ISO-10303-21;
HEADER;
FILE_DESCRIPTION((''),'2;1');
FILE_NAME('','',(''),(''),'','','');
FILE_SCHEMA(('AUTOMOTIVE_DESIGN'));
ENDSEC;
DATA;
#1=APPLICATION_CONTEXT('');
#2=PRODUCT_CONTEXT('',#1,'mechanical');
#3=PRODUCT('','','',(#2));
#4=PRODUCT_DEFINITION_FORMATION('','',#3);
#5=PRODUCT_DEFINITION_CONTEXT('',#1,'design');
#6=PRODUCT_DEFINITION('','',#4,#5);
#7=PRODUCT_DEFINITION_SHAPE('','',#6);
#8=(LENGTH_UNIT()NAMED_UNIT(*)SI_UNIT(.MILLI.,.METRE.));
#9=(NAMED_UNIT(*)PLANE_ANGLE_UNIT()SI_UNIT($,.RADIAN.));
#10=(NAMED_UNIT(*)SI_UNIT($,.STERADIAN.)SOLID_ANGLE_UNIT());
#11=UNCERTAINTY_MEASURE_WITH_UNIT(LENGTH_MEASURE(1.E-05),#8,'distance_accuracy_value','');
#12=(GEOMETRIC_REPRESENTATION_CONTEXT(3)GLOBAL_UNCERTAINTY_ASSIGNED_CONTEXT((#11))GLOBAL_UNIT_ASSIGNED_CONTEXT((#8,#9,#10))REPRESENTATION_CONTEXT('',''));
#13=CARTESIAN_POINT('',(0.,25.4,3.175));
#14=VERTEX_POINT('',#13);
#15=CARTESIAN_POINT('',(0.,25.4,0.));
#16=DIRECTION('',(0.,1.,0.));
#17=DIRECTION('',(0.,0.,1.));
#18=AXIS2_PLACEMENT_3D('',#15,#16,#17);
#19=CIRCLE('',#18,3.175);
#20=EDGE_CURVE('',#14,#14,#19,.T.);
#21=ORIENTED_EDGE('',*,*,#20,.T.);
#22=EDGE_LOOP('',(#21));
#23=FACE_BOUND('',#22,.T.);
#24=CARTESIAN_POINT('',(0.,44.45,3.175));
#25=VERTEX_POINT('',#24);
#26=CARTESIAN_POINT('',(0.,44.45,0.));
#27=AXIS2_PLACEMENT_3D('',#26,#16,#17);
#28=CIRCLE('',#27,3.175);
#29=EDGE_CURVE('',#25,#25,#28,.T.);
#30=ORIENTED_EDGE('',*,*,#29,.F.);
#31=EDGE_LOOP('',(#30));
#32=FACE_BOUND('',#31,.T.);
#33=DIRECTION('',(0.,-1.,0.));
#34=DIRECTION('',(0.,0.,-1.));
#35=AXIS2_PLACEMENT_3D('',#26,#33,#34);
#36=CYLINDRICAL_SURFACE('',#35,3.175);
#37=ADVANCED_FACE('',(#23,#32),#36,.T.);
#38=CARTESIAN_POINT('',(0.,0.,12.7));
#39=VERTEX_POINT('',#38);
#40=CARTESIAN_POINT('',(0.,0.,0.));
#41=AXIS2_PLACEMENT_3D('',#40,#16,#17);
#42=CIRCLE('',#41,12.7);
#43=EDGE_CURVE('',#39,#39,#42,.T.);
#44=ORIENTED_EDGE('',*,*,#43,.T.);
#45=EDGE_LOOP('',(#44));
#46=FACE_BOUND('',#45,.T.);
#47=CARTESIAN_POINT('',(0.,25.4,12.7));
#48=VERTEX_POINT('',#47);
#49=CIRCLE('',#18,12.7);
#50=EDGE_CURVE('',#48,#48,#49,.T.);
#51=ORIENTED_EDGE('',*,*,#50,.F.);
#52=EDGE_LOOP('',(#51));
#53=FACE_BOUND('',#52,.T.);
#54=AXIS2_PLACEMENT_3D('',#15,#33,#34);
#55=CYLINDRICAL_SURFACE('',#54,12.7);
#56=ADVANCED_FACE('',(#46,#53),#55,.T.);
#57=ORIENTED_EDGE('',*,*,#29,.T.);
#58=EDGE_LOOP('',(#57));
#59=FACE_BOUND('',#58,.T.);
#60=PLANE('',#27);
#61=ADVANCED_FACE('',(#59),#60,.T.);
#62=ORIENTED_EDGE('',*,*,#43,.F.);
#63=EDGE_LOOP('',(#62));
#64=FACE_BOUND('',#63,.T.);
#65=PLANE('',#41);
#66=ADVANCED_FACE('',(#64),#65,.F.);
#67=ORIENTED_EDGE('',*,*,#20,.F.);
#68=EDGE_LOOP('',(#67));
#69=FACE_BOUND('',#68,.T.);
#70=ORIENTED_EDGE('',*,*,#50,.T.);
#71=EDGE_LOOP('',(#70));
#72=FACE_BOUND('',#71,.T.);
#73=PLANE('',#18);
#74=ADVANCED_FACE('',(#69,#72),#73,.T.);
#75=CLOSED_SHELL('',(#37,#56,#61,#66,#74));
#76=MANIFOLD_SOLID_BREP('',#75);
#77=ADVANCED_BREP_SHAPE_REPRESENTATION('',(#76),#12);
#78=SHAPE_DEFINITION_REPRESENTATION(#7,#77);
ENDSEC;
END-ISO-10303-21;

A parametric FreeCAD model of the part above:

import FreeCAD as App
import Part
import Sketcher

V = App.Vector
Q = App.Units.Quantity

doc = App.newDocument("Part")
body = doc.addObject("PartDesign::Body", "Body")

sketch1 = body.newObject("Sketcher::SketchObject", "Sketch")
sketch1.AttachmentSupport = (doc.getObject("XZ_Plane"), [""])
sketch1.MapMode = "FlatFace"
sketch1.addGeometry(Part.Circle(V(0, 0, 0), V(0, 0, 1), 12.7), False)
sketch1.addConstraint([
    Sketcher.Constraint("Coincident", 0, 3, -1, 1),
    Sketcher.Constraint("Diameter", 0, Q("1 in")),
])
pad1 = body.newObject("PartDesign::Pad", "Pad")
pad1.Profile = sketch1
pad1.Length = Q("1 in")
pad1.Reversed = True

sketch2 = body.newObject("Sketcher::SketchObject", "Sketch001")
sketch2.AttachmentSupport = (doc.getObject("XZ_Plane"), [""])
sketch2.MapMode = "FlatFace"
sketch2.AttachmentOffset = App.Placement(V(0, 0, -1 * 25.4), App.Rotation())
sketch2.addGeometry(Part.Circle(V(0, 0, 0), V(0, 0, 1), 3.175), False)
sketch2.addConstraint([
    Sketcher.Constraint("Coincident", 0, 3, -1, 1),
    Sketcher.Constraint("Diameter", 0, Q("0.25 in")),
])
pad2 = body.newObject("PartDesign::Pad", "Pad001")
pad2.Profile = sketch2
pad2.Length = Q("0.75 in")
pad2.Reversed = True

doc.recompute()
